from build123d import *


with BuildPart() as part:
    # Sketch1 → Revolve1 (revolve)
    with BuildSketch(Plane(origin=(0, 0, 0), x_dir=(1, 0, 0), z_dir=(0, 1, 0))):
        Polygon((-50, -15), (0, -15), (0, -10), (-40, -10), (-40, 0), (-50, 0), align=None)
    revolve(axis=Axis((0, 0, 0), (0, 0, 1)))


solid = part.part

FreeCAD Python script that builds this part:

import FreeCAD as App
import Part
import Sketcher
Q = App.Units.Quantity

doc = App.newDocument("Part")
body = doc.addObject("PartDesign::Body", "Body")

# Sketch on XZ plane
sketch1 = body.newObject("Sketcher::SketchObject", "Sketch")
sketch1.AttachmentSupport = (doc.getObject("XZ_Plane"), [""])
sketch1.MapMode = "FlatFace"
sketch1.addGeometry(Part.LineSegment(App.Vector(-50, 15, 0), App.Vector(0, 15, 0)), False)
sketch1.addGeometry(Part.LineSegment(App.Vector(0, 15, 0), App.Vector(0, 10, 0)), False)
sketch1.addGeometry(Part.LineSegment(App.Vector(0, 10, 0), App.Vector(-40, 10, 0)), False)
sketch1.addGeometry(Part.LineSegment(App.Vector(-40, 10, 0), App.Vector(-40, 0, 0)), False)
sketch1.addGeometry(Part.LineSegment(App.Vector(-40, 0, 0), App.Vector(-50, 0, 0)), False)
sketch1.addGeometry(Part.LineSegment(App.Vector(-50, 0, 0), App.Vector(-50, 15, 0)), False)
sketch1.addConstraint(Sketcher.Constraint("Coincident", 0, 2, 1, 1))
sketch1.addConstraint(Sketcher.Constraint("Coincident", 1, 2, 2, 1))
sketch1.addConstraint(Sketcher.Constraint("Coincident", 2, 2, 3, 1))
sketch1.addConstraint(Sketcher.Constraint("Coincident", 3, 2, 4, 1))
sketch1.addConstraint(Sketcher.Constraint("Coincident", 4, 2, 5, 1))
sketch1.addConstraint(Sketcher.Constraint("Coincident", 5, 2, 0, 1))
sketch1.addConstraint(Sketcher.Constraint("Horizontal", 0))
sketch1.addConstraint(Sketcher.Constraint("Vertical", 1))
sketch1.addConstraint(Sketcher.Constraint("Horizontal", 2))
sketch1.addConstraint(Sketcher.Constraint("Vertical", 3))
sketch1.addConstraint(Sketcher.Constraint("Horizontal", 4))
sketch1.addConstraint(Sketcher.Constraint("Vertical", 5))
sketch1.addConstraint(Sketcher.Constraint("PointOnObject", 0, 2, -2))
sketch1.addConstraint(Sketcher.Constraint("PointOnObject", 3, 2, -1))
sketch1.addConstraint(Sketcher.Constraint("Equal", 4, 3))
sketch1.addConstraint(Sketcher.Constraint("DistanceX", 0, 1, 0, 2, Q("50 mm")))
sketch1.addConstraint(Sketcher.Constraint("DistanceX", 2, 2, 2, 1, Q("40 mm")))
sketch1.addConstraint(Sketcher.Constraint("DistanceY", 1, 2, 1, 1, Q("5 mm")))
revolution = body.newObject("PartDesign::Revolution", "Revolution")
revolution.Profile = sketch1
revolution.ReferenceAxis = (sketch1, ["V_Axis"])
revolution.Angle = 360

doc.recompute()
